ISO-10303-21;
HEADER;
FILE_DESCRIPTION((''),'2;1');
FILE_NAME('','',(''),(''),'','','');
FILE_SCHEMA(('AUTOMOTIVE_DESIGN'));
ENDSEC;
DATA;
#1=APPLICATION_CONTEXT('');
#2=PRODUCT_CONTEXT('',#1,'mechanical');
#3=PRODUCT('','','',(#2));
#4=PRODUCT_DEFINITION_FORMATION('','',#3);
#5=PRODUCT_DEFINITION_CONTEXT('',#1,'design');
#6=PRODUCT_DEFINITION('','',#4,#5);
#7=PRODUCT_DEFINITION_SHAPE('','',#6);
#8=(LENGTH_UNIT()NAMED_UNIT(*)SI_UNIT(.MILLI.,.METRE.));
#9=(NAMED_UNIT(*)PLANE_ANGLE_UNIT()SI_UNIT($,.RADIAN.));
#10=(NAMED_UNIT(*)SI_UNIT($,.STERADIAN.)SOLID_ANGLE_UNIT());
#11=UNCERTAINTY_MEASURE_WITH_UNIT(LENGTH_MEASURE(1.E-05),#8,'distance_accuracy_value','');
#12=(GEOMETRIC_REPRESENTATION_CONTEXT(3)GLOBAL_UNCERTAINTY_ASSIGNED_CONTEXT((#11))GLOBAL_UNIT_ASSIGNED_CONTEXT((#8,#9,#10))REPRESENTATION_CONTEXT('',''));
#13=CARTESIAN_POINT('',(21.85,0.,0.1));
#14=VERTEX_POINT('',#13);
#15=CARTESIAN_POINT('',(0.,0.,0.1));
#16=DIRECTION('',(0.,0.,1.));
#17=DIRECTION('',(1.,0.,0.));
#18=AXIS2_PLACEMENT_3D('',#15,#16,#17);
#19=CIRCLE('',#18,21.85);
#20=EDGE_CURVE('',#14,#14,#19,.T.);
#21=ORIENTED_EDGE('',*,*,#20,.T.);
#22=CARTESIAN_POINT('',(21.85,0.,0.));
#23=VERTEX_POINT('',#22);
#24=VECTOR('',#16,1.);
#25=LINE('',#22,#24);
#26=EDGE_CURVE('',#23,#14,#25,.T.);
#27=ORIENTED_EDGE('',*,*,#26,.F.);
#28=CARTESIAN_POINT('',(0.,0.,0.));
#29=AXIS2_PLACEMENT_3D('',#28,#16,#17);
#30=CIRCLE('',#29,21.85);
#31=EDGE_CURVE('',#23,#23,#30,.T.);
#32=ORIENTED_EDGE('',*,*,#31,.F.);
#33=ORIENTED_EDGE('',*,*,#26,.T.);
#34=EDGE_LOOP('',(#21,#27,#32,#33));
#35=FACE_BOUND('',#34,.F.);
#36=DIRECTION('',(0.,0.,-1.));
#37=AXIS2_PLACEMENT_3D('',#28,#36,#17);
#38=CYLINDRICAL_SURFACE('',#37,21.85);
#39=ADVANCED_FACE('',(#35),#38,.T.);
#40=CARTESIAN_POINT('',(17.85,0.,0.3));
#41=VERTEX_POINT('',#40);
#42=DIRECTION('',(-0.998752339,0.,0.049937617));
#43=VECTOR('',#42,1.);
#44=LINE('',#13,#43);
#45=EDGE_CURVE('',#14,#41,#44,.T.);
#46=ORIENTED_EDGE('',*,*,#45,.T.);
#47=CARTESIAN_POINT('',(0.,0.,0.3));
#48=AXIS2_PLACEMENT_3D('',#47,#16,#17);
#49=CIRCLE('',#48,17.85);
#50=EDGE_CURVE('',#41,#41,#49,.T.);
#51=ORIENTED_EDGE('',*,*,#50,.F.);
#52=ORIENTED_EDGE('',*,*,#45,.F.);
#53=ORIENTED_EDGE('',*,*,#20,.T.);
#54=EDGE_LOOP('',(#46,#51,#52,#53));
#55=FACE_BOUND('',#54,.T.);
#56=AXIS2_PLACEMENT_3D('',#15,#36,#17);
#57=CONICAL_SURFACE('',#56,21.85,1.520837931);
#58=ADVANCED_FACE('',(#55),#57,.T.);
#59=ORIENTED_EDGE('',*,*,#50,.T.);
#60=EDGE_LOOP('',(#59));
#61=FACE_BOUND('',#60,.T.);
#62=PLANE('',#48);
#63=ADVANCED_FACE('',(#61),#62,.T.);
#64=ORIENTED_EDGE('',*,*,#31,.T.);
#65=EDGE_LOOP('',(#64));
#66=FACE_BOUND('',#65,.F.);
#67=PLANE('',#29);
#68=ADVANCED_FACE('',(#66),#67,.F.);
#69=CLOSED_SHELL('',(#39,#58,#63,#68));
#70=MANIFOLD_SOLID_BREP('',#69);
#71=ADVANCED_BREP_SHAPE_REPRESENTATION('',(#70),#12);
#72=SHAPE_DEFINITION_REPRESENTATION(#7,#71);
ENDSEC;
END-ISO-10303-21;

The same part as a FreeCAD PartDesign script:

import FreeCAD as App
import Part
import Sketcher
Q = App.Units.Quantity


def edges_at(feature, points):
    """Names of the edges that pass closest to the given points."""
    edges = feature.Shape.Edges
    near = lambda p: min(range(len(edges)), key=lambda i: edges[i].distToShape(Part.Vertex(*p))[0])
    return sorted({f"Edge{near(p) + 1}" for p in points})

doc = App.newDocument("Part")
body = doc.addObject("PartDesign::Body", "Body")

# Sketch on XY plane
sketch1 = body.newObject("Sketcher::SketchObject", "Sketch")
sketch1.AttachmentSupport = (doc.getObject("XY_Plane"), [""])
sketch1.MapMode = "FlatFace"
sketch1.addGeometry(Part.Circle(App.Vector(0, 0, 0), App.Vector(0, 0, 1), 22), False)
sketch1.addConstraint([
    Sketcher.Constraint("Coincident", 0, 3, -1, 1),
    Sketcher.Constraint("Diameter", 0, Q("43.7 mm")),
])
pad1 = body.newObject("PartDesign::Pad", "Pad")
pad1.Profile = sketch1
pad1.Length = 0.3
doc.recompute()

chamfer = body.newObject("PartDesign::Chamfer", "Chamfer")
chamfer.Base = (pad1, edges_at(pad1, [(-21.85, 0, 0.3)]))
chamfer.ChamferType = "Two distances"
chamfer.Size = 0.2
chamfer.Size2 = 4

doc.recompute()
